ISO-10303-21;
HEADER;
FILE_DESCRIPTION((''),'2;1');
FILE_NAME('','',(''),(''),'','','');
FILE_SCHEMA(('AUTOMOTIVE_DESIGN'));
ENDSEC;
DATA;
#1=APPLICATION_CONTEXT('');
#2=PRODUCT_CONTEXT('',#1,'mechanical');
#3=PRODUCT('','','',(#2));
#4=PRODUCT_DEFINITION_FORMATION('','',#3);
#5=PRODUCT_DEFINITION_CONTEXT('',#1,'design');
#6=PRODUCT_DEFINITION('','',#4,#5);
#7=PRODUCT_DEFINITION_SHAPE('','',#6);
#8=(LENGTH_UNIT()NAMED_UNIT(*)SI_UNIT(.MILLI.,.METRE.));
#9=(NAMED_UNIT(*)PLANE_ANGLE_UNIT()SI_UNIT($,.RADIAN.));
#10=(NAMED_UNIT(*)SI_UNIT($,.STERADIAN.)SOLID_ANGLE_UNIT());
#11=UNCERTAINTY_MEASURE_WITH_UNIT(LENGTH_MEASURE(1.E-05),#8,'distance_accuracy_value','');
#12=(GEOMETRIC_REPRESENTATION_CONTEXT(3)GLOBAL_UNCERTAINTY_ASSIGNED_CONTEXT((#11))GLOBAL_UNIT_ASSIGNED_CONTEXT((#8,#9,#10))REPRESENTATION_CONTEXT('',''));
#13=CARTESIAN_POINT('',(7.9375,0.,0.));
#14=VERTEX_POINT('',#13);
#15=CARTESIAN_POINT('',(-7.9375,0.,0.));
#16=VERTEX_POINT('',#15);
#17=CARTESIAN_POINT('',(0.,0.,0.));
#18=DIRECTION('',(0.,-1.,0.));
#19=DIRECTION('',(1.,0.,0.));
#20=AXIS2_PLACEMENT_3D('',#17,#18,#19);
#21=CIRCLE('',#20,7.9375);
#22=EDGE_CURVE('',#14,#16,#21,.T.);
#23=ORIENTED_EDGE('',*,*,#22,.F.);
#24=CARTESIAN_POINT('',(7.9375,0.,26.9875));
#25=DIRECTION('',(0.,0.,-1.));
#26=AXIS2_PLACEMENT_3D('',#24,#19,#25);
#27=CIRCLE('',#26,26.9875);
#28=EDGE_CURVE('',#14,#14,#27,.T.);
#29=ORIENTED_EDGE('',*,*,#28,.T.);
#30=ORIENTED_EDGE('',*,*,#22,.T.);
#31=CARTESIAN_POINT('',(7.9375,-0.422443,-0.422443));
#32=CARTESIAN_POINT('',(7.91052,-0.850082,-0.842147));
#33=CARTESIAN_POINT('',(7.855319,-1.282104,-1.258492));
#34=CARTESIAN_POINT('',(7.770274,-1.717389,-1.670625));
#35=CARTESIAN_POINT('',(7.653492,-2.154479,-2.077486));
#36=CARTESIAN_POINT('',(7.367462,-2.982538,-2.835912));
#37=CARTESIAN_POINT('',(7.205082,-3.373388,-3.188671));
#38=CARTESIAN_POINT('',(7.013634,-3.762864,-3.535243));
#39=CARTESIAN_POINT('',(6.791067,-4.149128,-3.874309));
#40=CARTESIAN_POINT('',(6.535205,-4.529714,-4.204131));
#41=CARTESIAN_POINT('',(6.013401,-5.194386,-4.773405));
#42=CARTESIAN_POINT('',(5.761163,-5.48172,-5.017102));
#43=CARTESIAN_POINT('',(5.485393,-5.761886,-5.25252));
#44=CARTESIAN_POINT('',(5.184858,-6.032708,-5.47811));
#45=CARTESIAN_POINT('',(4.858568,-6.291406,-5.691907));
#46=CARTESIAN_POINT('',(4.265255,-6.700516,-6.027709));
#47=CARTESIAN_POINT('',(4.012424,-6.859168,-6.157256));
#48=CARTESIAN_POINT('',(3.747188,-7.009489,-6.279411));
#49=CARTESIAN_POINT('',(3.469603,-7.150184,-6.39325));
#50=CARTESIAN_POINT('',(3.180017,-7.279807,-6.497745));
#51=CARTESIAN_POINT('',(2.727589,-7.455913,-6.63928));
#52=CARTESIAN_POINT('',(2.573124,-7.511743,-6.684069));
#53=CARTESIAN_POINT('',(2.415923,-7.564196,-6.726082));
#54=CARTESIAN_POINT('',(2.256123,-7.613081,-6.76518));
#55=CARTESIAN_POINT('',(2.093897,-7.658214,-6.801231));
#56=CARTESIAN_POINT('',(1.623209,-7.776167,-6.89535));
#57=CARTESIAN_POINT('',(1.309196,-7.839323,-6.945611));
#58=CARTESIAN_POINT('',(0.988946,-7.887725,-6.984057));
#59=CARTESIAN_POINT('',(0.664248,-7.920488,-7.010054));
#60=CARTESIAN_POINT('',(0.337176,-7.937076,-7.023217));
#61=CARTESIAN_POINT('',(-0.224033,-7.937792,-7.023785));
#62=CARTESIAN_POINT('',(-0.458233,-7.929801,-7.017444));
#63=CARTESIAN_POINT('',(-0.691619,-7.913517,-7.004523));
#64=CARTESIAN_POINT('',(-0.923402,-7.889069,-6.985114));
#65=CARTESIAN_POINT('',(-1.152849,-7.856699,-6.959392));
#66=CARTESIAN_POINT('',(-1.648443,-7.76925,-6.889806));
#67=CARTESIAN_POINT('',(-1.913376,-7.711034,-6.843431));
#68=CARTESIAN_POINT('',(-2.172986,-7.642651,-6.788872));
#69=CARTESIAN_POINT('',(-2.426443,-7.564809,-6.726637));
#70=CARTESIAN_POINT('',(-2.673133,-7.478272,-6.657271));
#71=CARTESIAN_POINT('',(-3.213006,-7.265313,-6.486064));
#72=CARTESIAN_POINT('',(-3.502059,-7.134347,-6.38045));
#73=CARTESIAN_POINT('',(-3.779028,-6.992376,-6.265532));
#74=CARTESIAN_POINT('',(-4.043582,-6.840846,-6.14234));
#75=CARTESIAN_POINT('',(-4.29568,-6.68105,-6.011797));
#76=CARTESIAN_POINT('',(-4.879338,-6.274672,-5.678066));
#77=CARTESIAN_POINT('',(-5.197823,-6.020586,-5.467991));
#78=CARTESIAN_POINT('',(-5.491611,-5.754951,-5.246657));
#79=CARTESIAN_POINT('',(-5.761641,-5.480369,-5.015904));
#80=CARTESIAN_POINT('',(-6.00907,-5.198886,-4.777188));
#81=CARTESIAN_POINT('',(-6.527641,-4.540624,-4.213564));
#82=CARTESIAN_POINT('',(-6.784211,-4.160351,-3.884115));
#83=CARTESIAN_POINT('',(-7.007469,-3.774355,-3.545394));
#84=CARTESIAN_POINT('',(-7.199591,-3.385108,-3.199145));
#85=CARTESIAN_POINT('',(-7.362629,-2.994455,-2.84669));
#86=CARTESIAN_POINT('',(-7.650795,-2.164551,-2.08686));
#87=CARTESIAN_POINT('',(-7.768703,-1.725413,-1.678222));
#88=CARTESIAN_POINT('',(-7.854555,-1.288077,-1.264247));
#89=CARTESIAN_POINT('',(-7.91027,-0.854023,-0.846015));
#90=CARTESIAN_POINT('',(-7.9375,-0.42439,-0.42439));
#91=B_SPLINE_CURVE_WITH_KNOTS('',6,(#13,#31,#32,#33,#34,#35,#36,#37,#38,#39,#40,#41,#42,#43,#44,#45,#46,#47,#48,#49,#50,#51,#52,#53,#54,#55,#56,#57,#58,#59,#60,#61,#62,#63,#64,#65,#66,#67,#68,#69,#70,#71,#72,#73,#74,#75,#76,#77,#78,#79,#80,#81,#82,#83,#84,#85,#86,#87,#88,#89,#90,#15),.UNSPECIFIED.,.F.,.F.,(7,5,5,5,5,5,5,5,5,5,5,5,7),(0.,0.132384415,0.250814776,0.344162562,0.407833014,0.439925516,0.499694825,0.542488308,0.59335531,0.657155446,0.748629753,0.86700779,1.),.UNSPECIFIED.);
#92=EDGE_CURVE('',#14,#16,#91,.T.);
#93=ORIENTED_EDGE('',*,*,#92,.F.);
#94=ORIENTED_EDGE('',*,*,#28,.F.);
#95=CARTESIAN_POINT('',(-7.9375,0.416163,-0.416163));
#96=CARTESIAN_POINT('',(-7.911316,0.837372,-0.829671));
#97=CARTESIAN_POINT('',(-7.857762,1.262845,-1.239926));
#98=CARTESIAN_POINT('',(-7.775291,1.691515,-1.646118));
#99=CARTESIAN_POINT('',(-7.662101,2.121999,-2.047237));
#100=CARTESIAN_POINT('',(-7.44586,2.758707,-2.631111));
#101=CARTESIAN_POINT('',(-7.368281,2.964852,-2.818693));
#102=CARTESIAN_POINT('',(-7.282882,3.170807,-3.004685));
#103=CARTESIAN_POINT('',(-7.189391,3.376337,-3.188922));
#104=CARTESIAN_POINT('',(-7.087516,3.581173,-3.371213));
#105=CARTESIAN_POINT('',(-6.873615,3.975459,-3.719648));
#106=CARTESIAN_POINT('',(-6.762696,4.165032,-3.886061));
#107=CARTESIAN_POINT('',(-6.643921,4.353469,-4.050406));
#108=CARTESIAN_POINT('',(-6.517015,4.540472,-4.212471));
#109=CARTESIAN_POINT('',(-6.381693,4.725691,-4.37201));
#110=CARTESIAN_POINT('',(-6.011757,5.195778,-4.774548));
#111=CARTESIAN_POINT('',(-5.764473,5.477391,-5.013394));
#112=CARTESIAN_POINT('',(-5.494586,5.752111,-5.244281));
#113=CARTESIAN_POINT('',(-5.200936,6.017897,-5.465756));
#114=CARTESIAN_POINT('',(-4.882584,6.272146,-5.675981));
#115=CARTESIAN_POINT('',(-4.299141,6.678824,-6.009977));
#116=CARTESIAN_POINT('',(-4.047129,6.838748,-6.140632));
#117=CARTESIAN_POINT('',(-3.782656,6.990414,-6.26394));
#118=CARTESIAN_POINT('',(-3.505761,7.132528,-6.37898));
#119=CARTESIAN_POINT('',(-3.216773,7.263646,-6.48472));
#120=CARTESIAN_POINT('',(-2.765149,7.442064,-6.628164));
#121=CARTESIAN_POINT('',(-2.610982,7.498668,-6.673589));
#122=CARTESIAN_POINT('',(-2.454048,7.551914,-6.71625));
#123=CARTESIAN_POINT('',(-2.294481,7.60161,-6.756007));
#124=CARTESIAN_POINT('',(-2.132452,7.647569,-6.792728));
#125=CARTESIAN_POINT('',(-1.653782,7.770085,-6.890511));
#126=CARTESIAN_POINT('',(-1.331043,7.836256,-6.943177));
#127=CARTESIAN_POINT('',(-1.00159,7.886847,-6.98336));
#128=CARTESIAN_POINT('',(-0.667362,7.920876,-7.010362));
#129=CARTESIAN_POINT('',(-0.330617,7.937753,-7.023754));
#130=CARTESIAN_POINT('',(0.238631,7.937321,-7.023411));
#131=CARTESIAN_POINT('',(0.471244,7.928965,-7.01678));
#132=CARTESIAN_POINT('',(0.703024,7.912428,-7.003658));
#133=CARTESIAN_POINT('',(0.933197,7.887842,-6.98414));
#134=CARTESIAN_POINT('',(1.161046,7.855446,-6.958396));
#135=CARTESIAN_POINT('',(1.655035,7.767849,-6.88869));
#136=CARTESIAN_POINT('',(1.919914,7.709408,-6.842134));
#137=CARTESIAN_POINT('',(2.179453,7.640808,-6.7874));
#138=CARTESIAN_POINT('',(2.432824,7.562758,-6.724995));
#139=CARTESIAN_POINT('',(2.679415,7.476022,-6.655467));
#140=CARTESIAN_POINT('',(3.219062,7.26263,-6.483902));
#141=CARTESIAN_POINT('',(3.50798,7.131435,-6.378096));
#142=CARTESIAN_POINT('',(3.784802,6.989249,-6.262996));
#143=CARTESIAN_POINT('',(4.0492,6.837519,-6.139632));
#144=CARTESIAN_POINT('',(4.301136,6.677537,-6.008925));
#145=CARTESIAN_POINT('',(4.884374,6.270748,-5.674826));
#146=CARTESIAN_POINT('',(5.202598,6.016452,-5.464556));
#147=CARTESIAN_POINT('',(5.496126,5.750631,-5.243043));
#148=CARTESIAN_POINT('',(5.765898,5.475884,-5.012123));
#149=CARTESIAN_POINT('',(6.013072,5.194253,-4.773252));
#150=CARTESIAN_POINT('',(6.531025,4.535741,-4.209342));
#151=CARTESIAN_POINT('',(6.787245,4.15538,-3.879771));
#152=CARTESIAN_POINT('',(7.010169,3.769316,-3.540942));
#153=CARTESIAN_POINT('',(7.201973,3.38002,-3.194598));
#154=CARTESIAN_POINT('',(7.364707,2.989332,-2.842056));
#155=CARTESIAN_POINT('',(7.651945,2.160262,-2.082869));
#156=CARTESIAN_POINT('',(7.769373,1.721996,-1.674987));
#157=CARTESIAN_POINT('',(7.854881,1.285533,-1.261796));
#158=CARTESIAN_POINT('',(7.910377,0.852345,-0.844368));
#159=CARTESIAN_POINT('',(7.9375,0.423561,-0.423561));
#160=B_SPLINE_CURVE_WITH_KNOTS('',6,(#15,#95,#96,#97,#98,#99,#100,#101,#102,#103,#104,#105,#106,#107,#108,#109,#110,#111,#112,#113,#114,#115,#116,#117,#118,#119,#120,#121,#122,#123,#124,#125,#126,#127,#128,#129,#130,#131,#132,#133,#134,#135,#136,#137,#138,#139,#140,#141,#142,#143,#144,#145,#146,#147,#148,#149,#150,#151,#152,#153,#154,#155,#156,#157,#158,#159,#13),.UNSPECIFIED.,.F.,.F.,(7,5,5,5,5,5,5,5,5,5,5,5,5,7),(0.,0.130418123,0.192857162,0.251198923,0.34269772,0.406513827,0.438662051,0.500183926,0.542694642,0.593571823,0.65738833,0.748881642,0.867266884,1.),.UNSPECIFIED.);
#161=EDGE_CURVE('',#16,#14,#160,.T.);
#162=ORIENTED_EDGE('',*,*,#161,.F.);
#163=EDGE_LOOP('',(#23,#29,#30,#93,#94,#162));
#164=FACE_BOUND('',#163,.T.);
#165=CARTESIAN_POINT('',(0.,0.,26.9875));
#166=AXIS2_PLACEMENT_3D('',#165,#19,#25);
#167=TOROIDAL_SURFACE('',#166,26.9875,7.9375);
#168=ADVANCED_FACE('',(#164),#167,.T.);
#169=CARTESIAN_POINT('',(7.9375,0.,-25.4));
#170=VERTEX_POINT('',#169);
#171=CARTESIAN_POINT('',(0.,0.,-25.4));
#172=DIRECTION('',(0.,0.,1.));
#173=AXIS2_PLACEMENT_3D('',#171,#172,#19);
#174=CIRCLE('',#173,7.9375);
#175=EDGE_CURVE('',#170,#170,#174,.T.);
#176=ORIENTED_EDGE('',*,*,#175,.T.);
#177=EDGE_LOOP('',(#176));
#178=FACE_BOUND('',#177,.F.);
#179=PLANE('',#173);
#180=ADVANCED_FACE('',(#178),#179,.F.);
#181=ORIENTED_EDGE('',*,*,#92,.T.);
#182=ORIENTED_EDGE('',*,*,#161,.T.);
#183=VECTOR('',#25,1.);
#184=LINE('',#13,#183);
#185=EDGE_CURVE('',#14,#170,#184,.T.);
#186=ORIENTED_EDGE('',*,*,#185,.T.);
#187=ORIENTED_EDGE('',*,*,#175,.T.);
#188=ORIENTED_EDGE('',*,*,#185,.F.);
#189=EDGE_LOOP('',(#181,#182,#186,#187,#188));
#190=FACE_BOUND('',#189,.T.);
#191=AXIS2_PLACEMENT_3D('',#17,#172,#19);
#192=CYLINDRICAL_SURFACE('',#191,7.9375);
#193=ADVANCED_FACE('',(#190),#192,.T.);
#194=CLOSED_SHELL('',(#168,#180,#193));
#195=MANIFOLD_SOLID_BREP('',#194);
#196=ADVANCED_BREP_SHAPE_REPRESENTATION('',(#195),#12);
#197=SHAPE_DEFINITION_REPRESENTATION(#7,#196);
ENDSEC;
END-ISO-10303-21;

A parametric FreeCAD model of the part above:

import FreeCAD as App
import Part
import Sketcher

V = App.Vector
Q = App.Units.Quantity

doc = App.newDocument("Part")
body = doc.addObject("PartDesign::Body", "Body")

# Sketch on XZ plane
sketch1 = body.newObject("Sketcher::SketchObject", "Sketch")
sketch1.AttachmentSupport = (doc.getObject("XZ_Plane"), [""])
sketch1.MapMode = "FlatFace"
sketch1.addGeometry(Part.Circle(V(0, 0, 0), V(0, 0, 1), 8), False)
sketch1.addGeometry(Part.LineSegment(V(0, 27, 0), V(10, 27, 0)), True)  # axis
sketch1.addConstraint([
    Sketcher.Constraint("Horizontal", 1),
    Sketcher.Constraint("Coincident", 0, 3, -1, 1),
    Sketcher.Constraint("PointOnObject", 1, 1, -2),
    Sketcher.Constraint("Diameter", 0, Q("0.625 in")),
    Sketcher.Constraint("DistanceY", -1, 1, 1, 1, Q("1.0625 in")),
    Sketcher.Constraint("DistanceX", 1, 1, 1, 2, Q("10 mm")),
])
revolution = body.newObject("PartDesign::Revolution", "Revolution")
revolution.Profile = sketch1
revolution.ReferenceAxis = (sketch1, ["Axis0"])
revolution.Angle = 360

# Sketch on XY plane
sketch2 = body.newObject("Sketcher::SketchObject", "Sketch001")
sketch2.AttachmentSupport = (doc.getObject("XY_Plane"), [""])
sketch2.MapMode = "FlatFace"
sketch2.addGeometry(Part.Circle(V(0, 0, 0), V(0, 0, 1), 8), False)
sketch2.addConstraint([
    Sketcher.Constraint("Coincident", 0, 3, -1, 1),
    Sketcher.Constraint("Diameter", 0, Q("0.625 in")),
])
pad1 = body.newObject("PartDesign::Pad", "Pad")
pad1.Profile = sketch2
pad1.Length = Q("1 in")
pad1.Reversed = True

doc.recompute()
